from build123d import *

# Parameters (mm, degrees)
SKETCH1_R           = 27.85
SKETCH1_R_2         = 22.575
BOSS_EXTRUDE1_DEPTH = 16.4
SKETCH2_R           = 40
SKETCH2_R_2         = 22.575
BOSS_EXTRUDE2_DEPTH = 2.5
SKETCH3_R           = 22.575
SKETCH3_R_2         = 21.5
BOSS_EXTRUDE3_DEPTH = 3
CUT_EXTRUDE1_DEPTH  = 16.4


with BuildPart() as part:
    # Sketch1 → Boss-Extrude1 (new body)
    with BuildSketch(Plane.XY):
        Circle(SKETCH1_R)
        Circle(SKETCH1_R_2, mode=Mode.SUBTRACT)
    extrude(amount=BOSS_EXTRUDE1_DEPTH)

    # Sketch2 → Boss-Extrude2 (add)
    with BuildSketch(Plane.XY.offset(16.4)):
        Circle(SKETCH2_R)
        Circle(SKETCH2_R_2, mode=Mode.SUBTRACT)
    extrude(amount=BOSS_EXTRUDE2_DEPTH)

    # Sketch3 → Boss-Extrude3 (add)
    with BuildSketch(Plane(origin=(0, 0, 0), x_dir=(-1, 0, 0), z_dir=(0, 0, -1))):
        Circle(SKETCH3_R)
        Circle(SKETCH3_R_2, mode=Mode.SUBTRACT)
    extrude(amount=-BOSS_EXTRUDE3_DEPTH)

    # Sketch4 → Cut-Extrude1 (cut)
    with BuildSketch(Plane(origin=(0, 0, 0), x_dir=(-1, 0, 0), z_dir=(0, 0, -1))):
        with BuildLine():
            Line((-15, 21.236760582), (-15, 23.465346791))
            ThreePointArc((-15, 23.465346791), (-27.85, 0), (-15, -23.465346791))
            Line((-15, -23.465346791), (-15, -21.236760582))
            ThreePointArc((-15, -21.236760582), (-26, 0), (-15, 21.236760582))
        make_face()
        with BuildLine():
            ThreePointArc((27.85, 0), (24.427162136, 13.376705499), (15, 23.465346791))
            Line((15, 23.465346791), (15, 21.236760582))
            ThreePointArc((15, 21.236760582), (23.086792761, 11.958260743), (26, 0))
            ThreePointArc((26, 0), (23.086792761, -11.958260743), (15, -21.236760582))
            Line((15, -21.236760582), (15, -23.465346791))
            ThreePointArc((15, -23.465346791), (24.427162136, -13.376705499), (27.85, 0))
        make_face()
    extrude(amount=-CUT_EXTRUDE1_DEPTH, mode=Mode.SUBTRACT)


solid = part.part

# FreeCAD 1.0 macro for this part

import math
import FreeCAD as App
import Part
import Sketcher
from FreeCAD import Vector
Q = App.Units.Quantity

doc = App.newDocument("Part")
body = doc.addObject("PartDesign::Body", "Body")

# Sketch on XY plane
sketch1 = body.newObject("Sketcher::SketchObject", "Sketch")
sketch1.AttachmentSupport = (doc.getObject("XY_Plane"), [""])
sketch1.MapMode = "FlatFace"
sketch1.addGeometry(Part.Circle(Vector(0, 0, 0), Vector(0, 0, 1), 27.85), False)
sketch1.addGeometry(Part.Circle(Vector(0, 0, 0), Vector(0, 0, 1), 22.575), False)
sketch1.addConstraint(Sketcher.Constraint("Coincident", 0, 3, -1, 1))
sketch1.addConstraint(Sketcher.Constraint("Coincident", 1, 3, -1, 1))
sketch1.addConstraint(Sketcher.Constraint("Diameter", 0, Q("55.7 mm")))
sketch1.addConstraint(Sketcher.Constraint("Diameter", 1, Q("45.15 mm")))
pad1 = body.newObject("PartDesign::Pad", "Pad")
pad1.Profile = sketch1
pad1.Length = 16.4

# Sketch on XY plane
sketch2 = body.newObject("Sketcher::SketchObject", "Sketch001")
sketch2.AttachmentSupport = (doc.getObject("XY_Plane"), [""])
sketch2.MapMode = "FlatFace"
sketch2.AttachmentOffset = App.Placement(Vector(0, 0, 16.4), App.Rotation())
sketch2.addGeometry(Part.Circle(Vector(0, 0, 0), Vector(0, 0, 1), 40), False)
sketch2.addGeometry(Part.Circle(Vector(0, 0, 0), Vector(0, 0, 1), 22.575), False)
sketch2.addConstraint(Sketcher.Constraint("Coincident", 0, 3, -1, 1))
sketch2.addConstraint(Sketcher.Constraint("Coincident", 1, 3, -1, 1))
sketch2.addConstraint(Sketcher.Constraint("Diameter", 0, Q("80 mm")))
sketch2.addConstraint(Sketcher.Constraint("Diameter", 1, Q("45.15 mm")))
pad2 = body.newObject("PartDesign::Pad", "Pad001")
pad2.Profile = sketch2
pad2.Length = 2.5

# Sketch on XY plane
sketch3 = body.newObject("Sketcher::SketchObject", "Sketch002")
sketch3.AttachmentSupport = (doc.getObject("XY_Plane"), [""])
sketch3.MapMode = "FlatFace"
sketch3.addGeometry(Part.Circle(Vector(0, 0, 0), Vector(0, 0, 1), 22.575), False)
sketch3.addGeometry(Part.Circle(Vector(0, 0, 0), Vector(0, 0, 1), 21.5), False)
sketch3.addConstraint(Sketcher.Constraint("Coincident", 0, 3, -1, 1))
sketch3.addConstraint(Sketcher.Constraint("Coincident", 1, 3, -1, 1))
sketch3.addConstraint(Sketcher.Constraint("Diameter", 1, Q("43 mm")))
sketch3.addConstraint(Sketcher.Constraint("Diameter", 0, Q("45.15 mm")))
pad3 = body.newObject("PartDesign::Pad", "Pad002")
pad3.Profile = sketch3
pad3.Length = 3

# Sketch on XY plane
sketch4 = body.newObject("Sketcher::SketchObject", "Sketch003")
sketch4.AttachmentSupport = (doc.getObject("XY_Plane"), [""])
sketch4.MapMode = "FlatFace"
sketch4.addGeometry(Part.LineSegment(Vector(15, 21.236761, 0), Vector(15, 23.465347, 0)), False)
sketch4.addGeometry(Part.ArcOfCircle(Part.Circle(Vector(0, 0, 0), Vector(0, 0, 1), 27.85), math.radians(-57.411639), math.radians(57.411639)), False)
sketch4.addGeometry(Part.LineSegment(Vector(15, -23.465347, 0), Vector(15, -21.236761, 0)), False)
sketch4.addGeometry(Part.ArcOfCircle(Part.Circle(Vector(0, 0, 0), Vector(0, 0, 1), 26), math.radians(-54.765582), math.radians(54.765582)), False)
sketch4.addGeometry(Part.ArcOfCircle(Part.Circle(Vector(0, 0, 0), Vector(0, 0, 1), 27.85), math.radians(122.588361), math.radians(180)), False)
sketch4.addGeometry(Part.LineSegment(Vector(-15, 23.465347, 0), Vector(-15, 21.236761, 0)), False)
sketch4.addGeometry(Part.ArcOfCircle(Part.Circle(Vector(0, 0, 0), Vector(0, 0, 1), 26), math.radians(125.234418), math.radians(180)), False)
sketch4.addGeometry(Part.ArcOfCircle(Part.Circle(Vector(0, 0, 0), Vector(0, 0, 1), 26), math.radians(-180), math.radians(-125.234418)), False)
sketch4.addGeometry(Part.LineSegment(Vector(-15, -21.236761, 0), Vector(-15, -23.465347, 0)), False)
sketch4.addGeometry(Part.ArcOfCircle(Part.Circle(Vector(0, 0, 0), Vector(0, 0, 1), 27.85), math.radians(180), math.radians(237.411639)), False)
sketch4.addConstraint(Sketcher.Constraint("Coincident", 0, 2, 1, 2))
sketch4.addConstraint(Sketcher.Constraint("Coincident", 1, 1, 2, 1))
sketch4.addConstraint(Sketcher.Constraint("Coincident", 2, 2, 3, 1))
sketch4.addConstraint(Sketcher.Constraint("Coincident", 3, 2, 0, 1))
sketch4.addConstraint(Sketcher.Constraint("Coincident", 4, 1, 5, 1))
sketch4.addConstraint(Sketcher.Constraint("Coincident", 5, 2, 6, 1))
sketch4.addConstraint(Sketcher.Constraint("Tangent", 6, 2, 7, 1))
sketch4.addConstraint(Sketcher.Constraint("Coincident", 7, 2, 8, 1))
sketch4.addConstraint(Sketcher.Constraint("Coincident", 8, 2, 9, 2))
sketch4.addConstraint(Sketcher.Constraint("Tangent", 9, 1, 4, 2))
sketch4.addConstraint(Sketcher.Constraint("Vertical", 0))
sketch4.addConstraint(Sketcher.Constraint("Vertical", 2))
sketch4.addConstraint(Sketcher.Constraint("Vertical", 5))
sketch4.addConstraint(Sketcher.Constraint("Vertical", 8))
sketch4.addConstraint(Sketcher.Constraint("Coincident", 1, 3, -1, 1))
sketch4.addConstraint(Sketcher.Constraint("Coincident", 3, 3, -1, 1))
sketch4.addConstraint(Sketcher.Constraint("Coincident", 4, 3, -1, 1))
sketch4.addConstraint(Sketcher.Constraint("Coincident", 6, 3, -1, 1))
sketch4.addConstraint(Sketcher.Constraint("Equal", 1, 4))
sketch4.addConstraint(Sketcher.Constraint("Equal", 3, 6))
sketch4.addConstraint(Sketcher.Constraint("Equal", 6, 7))
sketch4.addConstraint(Sketcher.Constraint("Equal", 4, 9))
sketch4.addConstraint(Sketcher.Constraint("PointOnObject", 6, 2, -1))
sketch4.addConstraint(Sketcher.Constraint("PointOnObject", 9, 1, -1))
sketch4.addConstraint(Sketcher.Constraint("Horizontal", 0, 2, 4, 1))
sketch4.addConstraint(Sketcher.Constraint("Horizontal", 2, 2, 7, 2))
sketch4.addConstraint(Sketcher.Constraint("Vertical", 0, 2, 1, 1))
sketch4.addConstraint(Sketcher.Constraint("Radius", 3, Q("26 mm")))
sketch4.addConstraint(Sketcher.Constraint("Radius", 1, Q("27.85 mm")))
sketch4.addConstraint(Sketcher.Constraint("DistanceX", -1, 1, 0, 2, Q("15 mm")))
pocket1 = body.newObject("PartDesign::Pocket", "Pocket")
pocket1.Profile = sketch4
pocket1.Length = 16.4
pocket1.Reversed = True

doc.recompute()
